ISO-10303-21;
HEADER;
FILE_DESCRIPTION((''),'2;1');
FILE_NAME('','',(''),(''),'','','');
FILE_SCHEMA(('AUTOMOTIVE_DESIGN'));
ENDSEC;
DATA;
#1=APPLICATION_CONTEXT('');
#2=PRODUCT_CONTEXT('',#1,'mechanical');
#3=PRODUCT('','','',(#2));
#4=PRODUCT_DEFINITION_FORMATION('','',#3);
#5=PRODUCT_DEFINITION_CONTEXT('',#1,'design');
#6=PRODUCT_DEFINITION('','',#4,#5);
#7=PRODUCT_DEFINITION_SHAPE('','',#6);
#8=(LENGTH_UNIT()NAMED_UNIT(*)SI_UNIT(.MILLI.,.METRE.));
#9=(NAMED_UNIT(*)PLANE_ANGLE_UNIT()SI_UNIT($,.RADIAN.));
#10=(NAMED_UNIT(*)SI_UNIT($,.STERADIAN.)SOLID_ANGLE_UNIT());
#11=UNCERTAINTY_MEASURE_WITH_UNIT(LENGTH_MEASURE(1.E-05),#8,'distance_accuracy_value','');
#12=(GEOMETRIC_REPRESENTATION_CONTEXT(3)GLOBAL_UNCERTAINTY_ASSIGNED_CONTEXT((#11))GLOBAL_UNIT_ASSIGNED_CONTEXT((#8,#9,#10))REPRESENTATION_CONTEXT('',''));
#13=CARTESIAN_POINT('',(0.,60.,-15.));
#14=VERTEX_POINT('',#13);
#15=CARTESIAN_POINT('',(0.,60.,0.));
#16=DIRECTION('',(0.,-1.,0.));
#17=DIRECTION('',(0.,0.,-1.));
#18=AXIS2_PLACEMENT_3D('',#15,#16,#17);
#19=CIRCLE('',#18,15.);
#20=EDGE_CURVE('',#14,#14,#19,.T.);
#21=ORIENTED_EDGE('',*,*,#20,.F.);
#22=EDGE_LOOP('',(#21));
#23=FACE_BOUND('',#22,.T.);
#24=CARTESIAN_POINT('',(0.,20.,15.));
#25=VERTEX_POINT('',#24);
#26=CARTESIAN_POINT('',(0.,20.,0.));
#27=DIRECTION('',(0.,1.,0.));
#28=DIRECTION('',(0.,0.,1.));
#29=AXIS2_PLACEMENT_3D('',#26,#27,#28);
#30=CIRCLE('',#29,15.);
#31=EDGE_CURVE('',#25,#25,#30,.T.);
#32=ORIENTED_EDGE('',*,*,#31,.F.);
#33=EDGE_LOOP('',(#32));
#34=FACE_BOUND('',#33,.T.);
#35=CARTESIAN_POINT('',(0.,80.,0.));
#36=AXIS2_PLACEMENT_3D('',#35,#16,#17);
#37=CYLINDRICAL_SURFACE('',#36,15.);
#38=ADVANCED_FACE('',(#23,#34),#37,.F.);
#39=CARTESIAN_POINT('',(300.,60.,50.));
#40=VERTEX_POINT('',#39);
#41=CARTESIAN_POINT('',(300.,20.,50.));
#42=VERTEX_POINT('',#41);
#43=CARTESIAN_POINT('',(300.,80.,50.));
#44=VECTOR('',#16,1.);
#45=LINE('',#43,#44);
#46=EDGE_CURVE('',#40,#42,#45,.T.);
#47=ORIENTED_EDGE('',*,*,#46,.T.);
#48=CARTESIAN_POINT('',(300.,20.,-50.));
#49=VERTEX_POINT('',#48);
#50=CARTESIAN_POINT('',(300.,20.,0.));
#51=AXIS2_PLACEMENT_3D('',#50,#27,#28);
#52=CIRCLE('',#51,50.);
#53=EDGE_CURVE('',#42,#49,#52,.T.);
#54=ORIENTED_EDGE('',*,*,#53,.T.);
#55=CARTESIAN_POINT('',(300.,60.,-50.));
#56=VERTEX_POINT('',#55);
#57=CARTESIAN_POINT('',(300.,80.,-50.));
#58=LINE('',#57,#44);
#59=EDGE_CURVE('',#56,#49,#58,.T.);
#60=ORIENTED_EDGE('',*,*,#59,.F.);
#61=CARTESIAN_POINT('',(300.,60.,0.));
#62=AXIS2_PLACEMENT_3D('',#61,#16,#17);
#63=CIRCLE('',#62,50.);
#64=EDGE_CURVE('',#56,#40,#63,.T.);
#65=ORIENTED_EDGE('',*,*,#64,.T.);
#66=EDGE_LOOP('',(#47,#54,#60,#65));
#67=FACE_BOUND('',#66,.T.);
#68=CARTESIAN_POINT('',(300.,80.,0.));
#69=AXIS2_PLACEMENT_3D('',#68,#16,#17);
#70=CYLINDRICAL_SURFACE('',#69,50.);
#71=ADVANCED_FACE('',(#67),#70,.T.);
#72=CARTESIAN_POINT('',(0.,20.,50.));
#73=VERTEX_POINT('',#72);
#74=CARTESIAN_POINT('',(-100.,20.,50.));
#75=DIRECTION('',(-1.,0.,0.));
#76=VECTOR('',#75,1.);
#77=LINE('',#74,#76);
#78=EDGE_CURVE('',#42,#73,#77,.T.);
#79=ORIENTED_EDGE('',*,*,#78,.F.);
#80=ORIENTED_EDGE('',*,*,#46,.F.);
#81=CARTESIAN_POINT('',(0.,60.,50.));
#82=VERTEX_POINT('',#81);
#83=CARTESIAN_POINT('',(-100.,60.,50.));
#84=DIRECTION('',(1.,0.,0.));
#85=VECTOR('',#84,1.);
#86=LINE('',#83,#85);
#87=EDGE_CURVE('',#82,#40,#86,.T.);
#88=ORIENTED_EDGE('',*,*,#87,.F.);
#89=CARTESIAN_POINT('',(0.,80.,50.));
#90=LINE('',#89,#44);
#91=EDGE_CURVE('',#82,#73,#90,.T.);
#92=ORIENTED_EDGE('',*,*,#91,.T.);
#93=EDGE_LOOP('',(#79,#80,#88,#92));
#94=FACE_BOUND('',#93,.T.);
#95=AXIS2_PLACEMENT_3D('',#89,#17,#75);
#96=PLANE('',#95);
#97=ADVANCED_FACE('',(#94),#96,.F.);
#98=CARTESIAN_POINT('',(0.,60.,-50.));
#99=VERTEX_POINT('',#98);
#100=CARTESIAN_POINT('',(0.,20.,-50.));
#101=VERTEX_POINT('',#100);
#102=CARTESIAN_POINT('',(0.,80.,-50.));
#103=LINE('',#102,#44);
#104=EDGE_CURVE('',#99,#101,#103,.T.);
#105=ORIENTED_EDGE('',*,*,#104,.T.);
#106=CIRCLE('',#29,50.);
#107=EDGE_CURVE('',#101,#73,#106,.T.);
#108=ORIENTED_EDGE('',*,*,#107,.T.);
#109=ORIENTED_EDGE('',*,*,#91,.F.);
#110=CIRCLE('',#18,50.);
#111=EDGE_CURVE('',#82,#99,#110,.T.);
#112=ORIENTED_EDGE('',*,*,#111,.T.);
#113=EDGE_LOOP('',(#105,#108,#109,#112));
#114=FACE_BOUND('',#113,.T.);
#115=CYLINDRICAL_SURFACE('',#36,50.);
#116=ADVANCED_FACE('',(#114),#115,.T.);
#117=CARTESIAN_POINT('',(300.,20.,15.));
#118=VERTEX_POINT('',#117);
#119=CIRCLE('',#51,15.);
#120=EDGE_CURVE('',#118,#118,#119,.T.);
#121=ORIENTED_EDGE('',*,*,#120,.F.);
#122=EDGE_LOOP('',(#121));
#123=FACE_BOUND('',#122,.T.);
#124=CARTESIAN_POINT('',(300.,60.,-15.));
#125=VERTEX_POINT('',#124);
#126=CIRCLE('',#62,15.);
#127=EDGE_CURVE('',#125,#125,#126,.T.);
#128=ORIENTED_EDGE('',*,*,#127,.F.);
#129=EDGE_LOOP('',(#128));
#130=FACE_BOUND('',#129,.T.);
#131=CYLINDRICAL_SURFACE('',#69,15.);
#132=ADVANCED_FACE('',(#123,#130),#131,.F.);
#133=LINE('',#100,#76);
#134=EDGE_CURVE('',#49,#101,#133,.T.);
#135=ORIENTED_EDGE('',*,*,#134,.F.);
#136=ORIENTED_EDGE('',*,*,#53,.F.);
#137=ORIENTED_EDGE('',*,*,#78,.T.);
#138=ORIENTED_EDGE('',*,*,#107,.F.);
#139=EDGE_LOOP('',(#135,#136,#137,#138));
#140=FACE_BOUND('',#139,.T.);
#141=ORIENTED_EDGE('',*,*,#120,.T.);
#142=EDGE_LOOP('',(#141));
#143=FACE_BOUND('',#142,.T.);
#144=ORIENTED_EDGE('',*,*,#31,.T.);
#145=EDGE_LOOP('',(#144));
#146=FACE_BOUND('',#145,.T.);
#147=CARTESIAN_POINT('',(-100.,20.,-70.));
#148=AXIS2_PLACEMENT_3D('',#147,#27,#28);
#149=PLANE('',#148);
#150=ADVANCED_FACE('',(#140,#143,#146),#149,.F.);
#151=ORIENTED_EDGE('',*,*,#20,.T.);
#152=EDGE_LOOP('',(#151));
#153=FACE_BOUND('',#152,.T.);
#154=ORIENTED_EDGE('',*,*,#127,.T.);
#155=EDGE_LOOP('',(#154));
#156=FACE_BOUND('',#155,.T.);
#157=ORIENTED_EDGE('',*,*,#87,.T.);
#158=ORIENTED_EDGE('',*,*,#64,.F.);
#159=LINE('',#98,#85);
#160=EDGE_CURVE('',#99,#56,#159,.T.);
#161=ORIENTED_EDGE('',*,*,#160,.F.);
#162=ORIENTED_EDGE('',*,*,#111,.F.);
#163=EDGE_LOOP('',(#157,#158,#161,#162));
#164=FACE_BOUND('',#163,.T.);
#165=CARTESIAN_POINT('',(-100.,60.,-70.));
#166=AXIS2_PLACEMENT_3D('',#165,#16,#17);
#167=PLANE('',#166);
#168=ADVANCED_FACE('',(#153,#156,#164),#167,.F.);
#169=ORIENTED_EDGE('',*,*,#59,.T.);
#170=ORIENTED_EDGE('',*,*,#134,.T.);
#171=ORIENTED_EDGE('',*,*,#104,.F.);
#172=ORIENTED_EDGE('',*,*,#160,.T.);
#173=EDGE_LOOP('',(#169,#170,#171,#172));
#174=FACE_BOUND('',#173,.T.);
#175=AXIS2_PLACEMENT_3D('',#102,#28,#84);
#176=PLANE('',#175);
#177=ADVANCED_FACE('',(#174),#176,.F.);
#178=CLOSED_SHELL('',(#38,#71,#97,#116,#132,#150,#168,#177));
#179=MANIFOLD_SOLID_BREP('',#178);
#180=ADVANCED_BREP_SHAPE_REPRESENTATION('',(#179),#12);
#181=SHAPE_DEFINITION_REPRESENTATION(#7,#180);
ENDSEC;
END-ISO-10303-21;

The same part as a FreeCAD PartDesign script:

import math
import FreeCAD as App
import Part
import Sketcher

doc = App.newDocument("Part")
params = doc.addObject("Spreadsheet::Sheet", "Params")
for row, (alias, value) in enumerate([
    ("sketch1_diameter", "30 mm"),
    ("sketch1_radius", "50 mm"),
    ("sketch1_width", "300 mm"),
    ("pad1_length", "80 mm"),
    ("sketch2_width", "500 mm"),
    ("sketch2_height", "40 mm"),
    ("pocket1_length", "120 mm"),
], start=1):
    params.set(f"A{row}", alias)
    params.set(f"B{row}", "=" + value)
    params.setAlias(f"B{row}", alias)

body = doc.addObject("PartDesign::Body", "Body")

# Sketch on XZ plane
sketch1 = doc.addObject("Sketcher::SketchObject", "Sketch")
body.addObject(sketch1)
sketch1.AttachmentSupport = (doc.XZ_Plane, [""])
sketch1.MapMode = "FlatFace"
sketch1.addGeometry([
    Part.LineSegment(App.Vector(300, -50, 0), App.Vector(0, -50, 0)),  # 0
    Part.ArcOfCircle(Part.Circle(App.Vector(0, 0, 0), App.Vector(0, 0, 1), 50), math.radians(90), math.radians(270)),  # 1
    Part.LineSegment(App.Vector(0, 50, 0), App.Vector(300, 50, 0)),  # 2
    Part.ArcOfCircle(Part.Circle(App.Vector(300, 0, 0), App.Vector(0, 0, 1), 50), math.radians(-90), math.radians(90)),  # 3
    Part.Circle(App.Vector(300, 0, 0), App.Vector(0, 0, 1), 15),  # 4
    Part.Circle(App.Vector(0, 0, 0), App.Vector(0, 0, 1), 15),  # 5
], False)
sketch1.addConstraint([
    Sketcher.Constraint("Tangent", 0, 2, 1, 2),
    Sketcher.Constraint("Tangent", 1, 1, 2, 1),
    Sketcher.Constraint("Tangent", 2, 2, 3, 2),
    Sketcher.Constraint("Tangent", 3, 1, 0, 1),
    Sketcher.Constraint("Horizontal", 0),
    Sketcher.Constraint("Horizontal", 2),
    Sketcher.Constraint("Coincident", 1, 3, -1, 1),
    Sketcher.Constraint("Coincident", 5, 3, -1, 1),
    Sketcher.Constraint("Coincident", 4, 3, 3, 3),
    Sketcher.Constraint("Equal", 4, 5),
    Sketcher.Constraint("Diameter", 4, 30.0),
    Sketcher.Constraint("Radius", 1, 50.0),
    Sketcher.Constraint("DistanceX", 0, 2, 0, 1, 300.0),
])
sketch1.setExpression("Constraints[10]", "Params.sketch1_diameter")
sketch1.setExpression("Constraints[11]", "Params.sketch1_radius")
sketch1.setExpression("Constraints[12]", "Params.sketch1_width")
pad1 = doc.addObject("PartDesign::Pad", "Pad")
body.addObject(pad1)
pad1.Profile = sketch1
pad1.setExpression("Length", "Params.pad1_length")
pad1.Reversed = True

# Sketch on XY plane
sketch2 = doc.addObject("Sketcher::SketchObject", "Sketch001")
body.addObject(sketch2)
sketch2.AttachmentSupport = (doc.XY_Plane, [""])
sketch2.MapMode = "FlatFace"
sketch2.AttachmentOffset = App.Placement(App.Vector(0, 0, 50), App.Rotation())
sketch2.addGeometry([
    Part.LineSegment(App.Vector(-100, 100, 0), App.Vector(-100, 60, 0)),  # 0
    Part.LineSegment(App.Vector(-100, 60, 0), App.Vector(400, 60, 0)),  # 1
    Part.LineSegment(App.Vector(400, 60, 0), App.Vector(400, 100, 0)),  # 2
    Part.LineSegment(App.Vector(400, 100, 0), App.Vector(-100, 100, 0)),  # 3
    Part.LineSegment(App.Vector(-100, 20, 0), App.Vector(-100, -20, 0)),  # 4
    Part.LineSegment(App.Vector(-100, -20, 0), App.Vector(400, -20, 0)),  # 5
    Part.LineSegment(App.Vector(400, -20, 0), App.Vector(400, 20, 0)),  # 6
    Part.LineSegment(App.Vector(400, 20, 0), App.Vector(-100, 20, 0)),  # 7
], False)
sketch2.addConstraint([
    Sketcher.Constraint("Coincident", 0, 2, 1, 1),
    Sketcher.Constraint("Coincident", 1, 2, 2, 1),
    Sketcher.Constraint("Coincident", 2, 2, 3, 1),
    Sketcher.Constraint("Coincident", 3, 2, 0, 1),
    Sketcher.Constraint("Coincident", 4, 2, 5, 1),
    Sketcher.Constraint("Coincident", 5, 2, 6, 1),
    Sketcher.Constraint("Coincident", 6, 2, 7, 1),
    Sketcher.Constraint("Coincident", 7, 2, 4, 1),
    Sketcher.Constraint("Vertical", 0),
    Sketcher.Constraint("Horizontal", 1),
    Sketcher.Constraint("Vertical", 2),
    Sketcher.Constraint("Horizontal", 3),
    Sketcher.Constraint("Vertical", 4),
    Sketcher.Constraint("Horizontal", 5),
    Sketcher.Constraint("Vertical", 6),
    Sketcher.Constraint("Horizontal", 7),
    Sketcher.Constraint("Vertical", 3, 2, 4, 2),
    Sketcher.Constraint("Vertical", 2, 2, 5, 2),
    Sketcher.Constraint("Equal", 2, 4),
    Sketcher.Constraint("DistanceX", 1, 1, 1, 2, 500.0),
    Sketcher.Constraint("DistanceY", 0, 2, 0, 1, 40.0),
    Sketcher.Constraint("DistanceX", 0, 2, -1, 1, 100.0),
    Sketcher.Constraint("DistanceY", -1, 1, 0, 2, 60.0),
    Sketcher.Constraint("DistanceY", 4, 2, -1, 1, 20.0),
])
sketch2.setExpression("Constraints[19]", "Params.sketch2_width")
sketch2.setExpression("Constraints[20]", "Params.sketch2_height")
pocket1 = doc.addObject("PartDesign::Pocket", "Pocket")
body.addObject(pocket1)
pocket1.Profile = sketch2
pocket1.setExpression("Length", "Params.pocket1_length")

doc.recompute()
